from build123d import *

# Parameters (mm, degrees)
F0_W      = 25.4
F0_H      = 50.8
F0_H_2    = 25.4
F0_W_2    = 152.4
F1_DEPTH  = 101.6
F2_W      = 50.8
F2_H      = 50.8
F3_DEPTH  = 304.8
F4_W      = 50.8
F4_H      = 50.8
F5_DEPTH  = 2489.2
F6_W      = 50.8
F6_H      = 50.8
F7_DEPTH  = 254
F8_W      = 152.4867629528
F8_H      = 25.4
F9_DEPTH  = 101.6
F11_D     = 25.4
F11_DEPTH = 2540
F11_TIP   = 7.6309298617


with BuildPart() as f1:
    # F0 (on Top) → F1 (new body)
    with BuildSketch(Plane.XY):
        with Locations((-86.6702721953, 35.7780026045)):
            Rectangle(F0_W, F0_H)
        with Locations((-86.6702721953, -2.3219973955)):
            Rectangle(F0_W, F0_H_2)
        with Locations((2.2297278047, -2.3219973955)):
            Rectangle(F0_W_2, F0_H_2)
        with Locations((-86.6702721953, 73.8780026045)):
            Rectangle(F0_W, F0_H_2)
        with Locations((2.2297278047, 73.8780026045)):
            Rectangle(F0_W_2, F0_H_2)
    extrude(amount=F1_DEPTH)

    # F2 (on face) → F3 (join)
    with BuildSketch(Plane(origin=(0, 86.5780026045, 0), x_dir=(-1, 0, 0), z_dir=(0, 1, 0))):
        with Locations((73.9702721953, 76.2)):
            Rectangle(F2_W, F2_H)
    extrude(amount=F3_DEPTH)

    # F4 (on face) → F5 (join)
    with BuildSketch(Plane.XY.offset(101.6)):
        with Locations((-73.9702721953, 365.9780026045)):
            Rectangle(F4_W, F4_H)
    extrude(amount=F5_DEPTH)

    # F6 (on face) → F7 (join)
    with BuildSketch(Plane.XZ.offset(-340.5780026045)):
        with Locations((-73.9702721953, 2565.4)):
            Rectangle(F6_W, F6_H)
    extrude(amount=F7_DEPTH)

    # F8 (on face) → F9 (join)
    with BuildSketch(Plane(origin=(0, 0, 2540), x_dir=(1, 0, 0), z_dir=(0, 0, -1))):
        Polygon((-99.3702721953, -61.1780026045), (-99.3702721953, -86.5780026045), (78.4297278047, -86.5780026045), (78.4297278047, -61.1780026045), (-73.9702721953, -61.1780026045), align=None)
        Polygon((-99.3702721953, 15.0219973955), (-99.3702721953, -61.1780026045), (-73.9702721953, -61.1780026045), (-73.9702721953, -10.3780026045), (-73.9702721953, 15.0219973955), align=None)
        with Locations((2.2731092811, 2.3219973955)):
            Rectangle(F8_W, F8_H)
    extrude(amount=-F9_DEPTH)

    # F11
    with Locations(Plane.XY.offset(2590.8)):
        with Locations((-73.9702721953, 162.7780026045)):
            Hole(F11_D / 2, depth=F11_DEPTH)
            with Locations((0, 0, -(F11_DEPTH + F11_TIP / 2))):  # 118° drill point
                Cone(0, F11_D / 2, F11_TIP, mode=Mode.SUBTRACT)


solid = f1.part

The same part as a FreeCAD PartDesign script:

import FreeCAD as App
import Part
import Sketcher
from FreeCAD import Vector
Q = App.Units.Quantity

doc = App.newDocument("Part")
body = doc.addObject("PartDesign::Body", "Body")

sketch1 = doc.addObject("Sketcher::SketchObject", "Sketch")
body.addObject(sketch1)
sketch1.AttachmentSupport = (doc.XY_Plane, [""])
sketch1.MapMode = "FlatFace"
sketch1.addGeometry([
    Part.LineSegment(Vector(-99.370272, -15.021997, 0), Vector(78.429728, -15.021997, 0)),
    Part.LineSegment(Vector(78.429728, -15.021997, 0), Vector(78.429728, 10.378003, 0)),
    Part.LineSegment(Vector(78.429728, 10.378003, 0), Vector(-73.970272, 10.378003, 0)),
    Part.LineSegment(Vector(-73.970272, 10.378003, 0), Vector(-73.970272, 61.178003, 0)),
    Part.LineSegment(Vector(-73.970272, 61.178003, 0), Vector(78.429728, 61.178003, 0)),
    Part.LineSegment(Vector(78.429728, 61.178003, 0), Vector(78.429728, 86.578003, 0)),
    Part.LineSegment(Vector(78.429728, 86.578003, 0), Vector(-99.370272, 86.578003, 0)),
    Part.LineSegment(Vector(-99.370272, 86.578003, 0), Vector(-99.370272, -15.021997, 0)),
], False)
sketch1.addConstraint([
    Sketcher.Constraint("Coincident", 0, 2, 1, 1),
    Sketcher.Constraint("Coincident", 1, 2, 2, 1),
    Sketcher.Constraint("Coincident", 2, 2, 3, 1),
    Sketcher.Constraint("Coincident", 3, 2, 4, 1),
    Sketcher.Constraint("Coincident", 4, 2, 5, 1),
    Sketcher.Constraint("Coincident", 5, 2, 6, 1),
    Sketcher.Constraint("Coincident", 6, 2, 7, 1),
    Sketcher.Constraint("Coincident", 7, 2, 0, 1),
    Sketcher.Constraint("Horizontal", 0),
    Sketcher.Constraint("Vertical", 1),
    Sketcher.Constraint("Horizontal", 2),
    Sketcher.Constraint("Vertical", 3),
    Sketcher.Constraint("Horizontal", 4),
    Sketcher.Constraint("Vertical", 5),
    Sketcher.Constraint("Horizontal", 6),
    Sketcher.Constraint("Vertical", 7),
    Sketcher.Constraint("Vertical", 1, 2, 4, 2),
    Sketcher.Constraint("Equal", 1, 5),
    Sketcher.Constraint("DistanceX", 0, 1, 0, 2, Q("7 in")),
    Sketcher.Constraint("DistanceX", 2, 2, 2, 1, Q("6 in")),
    Sketcher.Constraint("DistanceY", 1, 1, 1, 2, Q("1 in")),
    Sketcher.Constraint("DistanceY", 3, 1, 3, 2, Q("2 in")),
    Sketcher.Constraint("DistanceX", -1, 1, 0, 2, Q("78.429728 mm")),
    Sketcher.Constraint("DistanceY", 0, 2, -1, 1, Q("15.021997 mm")),
])
pad1 = doc.addObject("PartDesign::Pad", "Pad")
body.addObject(pad1)
pad1.Profile = sketch1
pad1.Length = Q("4 in")

sketch2 = doc.addObject("Sketcher::SketchObject", "Sketch001")
body.addObject(sketch2)
sketch2.AttachmentSupport = (doc.XZ_Plane, [""])
sketch2.MapMode = "FlatFace"
sketch2.AttachmentOffset = App.Placement(Vector(0, 0, -86.578003), App.Rotation())
sketch2.addGeometry([
    Part.LineSegment(Vector(-48.570272, 101.6, 0), Vector(-48.570272, 50.8, 0)),
    Part.LineSegment(Vector(-48.570272, 50.8, 0), Vector(-99.370272, 50.8, 0)),
    Part.LineSegment(Vector(-99.370272, 50.8, 0), Vector(-99.370272, 101.6, 0)),
    Part.LineSegment(Vector(-99.370272, 101.6, 0), Vector(-48.570272, 101.6, 0)),
], False)
sketch2.addConstraint([
    Sketcher.Constraint("Coincident", 0, 2, 1, 1),
    Sketcher.Constraint("Coincident", 1, 2, 2, 1),
    Sketcher.Constraint("Coincident", 2, 2, 3, 1),
    Sketcher.Constraint("Coincident", 3, 2, 0, 1),
    Sketcher.Constraint("Vertical", 0),
    Sketcher.Constraint("Horizontal", 1),
    Sketcher.Constraint("Vertical", 2),
    Sketcher.Constraint("Horizontal", 3),
    Sketcher.Constraint("Equal", 3, 0),
    Sketcher.Constraint("DistanceX", 1, 2, 1, 1, Q("2 in")),
    Sketcher.Constraint("DistanceY", -1, 1, 0, 2, Q("2 in")),
    Sketcher.Constraint("DistanceX", 0, 2, -1, 1, Q("48.570272 mm")),
])
pad2 = doc.addObject("PartDesign::Pad", "Pad001")
body.addObject(pad2)
pad2.Profile = sketch2
pad2.Length = Q("12 in")
pad2.Reversed = True

sketch3 = doc.addObject("Sketcher::SketchObject", "Sketch002")
body.addObject(sketch3)
sketch3.AttachmentSupport = (doc.XY_Plane, [""])
sketch3.MapMode = "FlatFace"
sketch3.AttachmentOffset = App.Placement(Vector(0, 0, 4 * 25.4), App.Rotation())
sketch3.addGeometry([
    Part.LineSegment(Vector(-99.370272, 391.378003, 0), Vector(-99.370272, 340.578003, 0)),
    Part.LineSegment(Vector(-99.370272, 340.578003, 0), Vector(-48.570272, 340.578003, 0)),
    Part.LineSegment(Vector(-48.570272, 340.578003, 0), Vector(-48.570272, 391.378003, 0)),
    Part.LineSegment(Vector(-48.570272, 391.378003, 0), Vector(-99.370272, 391.378003, 0)),
], False)
sketch3.addConstraint([
    Sketcher.Constraint("Coincident", 0, 2, 1, 1),
    Sketcher.Constraint("Coincident", 1, 2, 2, 1),
    Sketcher.Constraint("Coincident", 2, 2, 3, 1),
    Sketcher.Constraint("Coincident", 3, 2, 0, 1),
    Sketcher.Constraint("Vertical", 0),
    Sketcher.Constraint("Horizontal", 1),
    Sketcher.Constraint("Vertical", 2),
    Sketcher.Constraint("Horizontal", 3),
    Sketcher.Constraint("Equal", 3, 0),
    Sketcher.Constraint("DistanceX", 1, 1, 1, 2, Q("2 in")),
    Sketcher.Constraint("DistanceX", 0, 2, -1, 1, Q("99.370272 mm")),
    Sketcher.Constraint("DistanceY", -1, 1, 0, 2, Q("340.578003 mm")),
])
pad3 = doc.addObject("PartDesign::Pad", "Pad002")
body.addObject(pad3)
pad3.Profile = sketch3
pad3.Length = Q("98 in")

sketch4 = doc.addObject("Sketcher::SketchObject", "Sketch003")
body.addObject(sketch4)
sketch4.AttachmentSupport = (doc.XZ_Plane, [""])
sketch4.MapMode = "FlatFace"
sketch4.AttachmentOffset = App.Placement(Vector(0, 0, -340.578003), App.Rotation())
sketch4.addGeometry([
    Part.LineSegment(Vector(-99.370272, 2590.8, 0), Vector(-99.370272, 2540, 0)),
    Part.LineSegment(Vector(-99.370272, 2540, 0), Vector(-48.570272, 2540, 0)),
    Part.LineSegment(Vector(-48.570272, 2540, 0), Vector(-48.570272, 2590.8, 0)),
    Part.LineSegment(Vector(-48.570272, 2590.8, 0), Vector(-99.370272, 2590.8, 0)),
], False)
sketch4.addConstraint([
    Sketcher.Constraint("Coincident", 0, 2, 1, 1),
    Sketcher.Constraint("Coincident", 1, 2, 2, 1),
    Sketcher.Constraint("Coincident", 2, 2, 3, 1),
    Sketcher.Constraint("Coincident", 3, 2, 0, 1),
    Sketcher.Constraint("Vertical", 0),
    Sketcher.Constraint("Horizontal", 1),
    Sketcher.Constraint("Vertical", 2),
    Sketcher.Constraint("Horizontal", 3),
    Sketcher.Constraint("Equal", 3, 0),
    Sketcher.Constraint("DistanceX", 1, 1, 1, 2, Q("2 in")),
    Sketcher.Constraint("DistanceY", -1, 1, 0, 2, Q("100 in")),
    Sketcher.Constraint("DistanceX", 0, 2, -1, 1, Q("99.370272 mm")),
])
pad4 = doc.addObject("PartDesign::Pad", "Pad003")
body.addObject(pad4)
pad4.Profile = sketch4
pad4.Length = Q("10 in")

sketch5 = doc.addObject("Sketcher::SketchObject", "Sketch004")
body.addObject(sketch5)
sketch5.AttachmentSupport = (doc.XY_Plane, [""])
sketch5.MapMode = "FlatFace"
sketch5.AttachmentOffset = App.Placement(Vector(0, 0, 100 * 25.4), App.Rotation())
sketch5.addGeometry([
    Part.LineSegment(Vector(-99.370272, 86.578003, 0), Vector(78.429728, 86.578003, 0)),
    Part.LineSegment(Vector(78.429728, 86.578003, 0), Vector(78.429728, 61.178003, 0)),
    Part.LineSegment(Vector(78.429728, 61.178003, 0), Vector(-73.970272, 61.178003, 0)),
    Part.LineSegment(Vector(-73.970272, 61.178003, 0), Vector(-73.970272, 10.378003, 0)),
    Part.LineSegment(Vector(-73.970272, 10.378003, 0), Vector(78.516491, 10.378003, 0)),
    Part.LineSegment(Vector(78.516491, 10.378003, 0), Vector(78.516491, -15.021997, 0)),
    Part.LineSegment(Vector(78.516491, -15.021997, 0), Vector(-99.370272, -15.021997, 0)),
    Part.LineSegment(Vector(-99.370272, -15.021997, 0), Vector(-99.370272, 86.578003, 0)),
], False)
sketch5.addConstraint([
    Sketcher.Constraint("Coincident", 0, 2, 1, 1),
    Sketcher.Constraint("Coincident", 1, 2, 2, 1),
    Sketcher.Constraint("Coincident", 2, 2, 3, 1),
    Sketcher.Constraint("Coincident", 3, 2, 4, 1),
    Sketcher.Constraint("Coincident", 4, 2, 5, 1),
    Sketcher.Constraint("Coincident", 5, 2, 6, 1),
    Sketcher.Constraint("Coincident", 6, 2, 7, 1),
    Sketcher.Constraint("Coincident", 7, 2, 0, 1),
    Sketcher.Constraint("Horizontal", 0),
    Sketcher.Constraint("Vertical", 1),
    Sketcher.Constraint("Horizontal", 2),
    Sketcher.Constraint("Vertical", 3),
    Sketcher.Constraint("Horizontal", 4),
    Sketcher.Constraint("Vertical", 5),
    Sketcher.Constraint("Horizontal", 6),
    Sketcher.Constraint("Vertical", 7),
    Sketcher.Constraint("Equal", 1, 5),
    Sketcher.Constraint("DistanceX", 0, 1, 0, 2, Q("7 in")),
    Sketcher.Constraint("DistanceX", 2, 2, 2, 1, Q("6 in")),
    Sketcher.Constraint("DistanceY", 1, 2, 1, 1, Q("1 in")),
    Sketcher.Constraint("DistanceY", 3, 2, 3, 1, Q("2 in")),
    Sketcher.Constraint("DistanceX", 4, 1, 4, 2, Q("152.486763 mm")),
    Sketcher.Constraint("DistanceX", -1, 1, 4, 2, Q("78.516491 mm")),
    Sketcher.Constraint("DistanceY", -1, 1, 0, 2, Q("86.578003 mm")),
])
pad5 = doc.addObject("PartDesign::Pad", "Pad004")
body.addObject(pad5)
pad5.Profile = sketch5
pad5.Length = Q("4 in")

sketch6 = doc.addObject("Sketcher::SketchObject", "Sketch005")
body.addObject(sketch6)
sketch6.AttachmentSupport = (doc.XY_Plane, [""])
sketch6.MapMode = "FlatFace"
sketch6.AttachmentOffset = App.Placement(Vector(0, 0, 102 * 25.4), App.Rotation())
sketch6.addGeometry(Part.Circle(Vector(-73.970272, 162.778003, 0), Vector(0, 0, 1), 12.7), False)
sketch6.addConstraint([
    Sketcher.Constraint("Diameter", 0, Q("1 in")),
    Sketcher.Constraint("DistanceX", 0, 3, -1, 1, Q("73.970272 mm")),
    Sketcher.Constraint("DistanceY", -1, 1, 0, 3, Q("162.778003 mm")),
])
doc.recompute()
hole = doc.addObject("PartDesign::Hole", "Hole")
body.addObject(hole)
hole.Profile = sketch6
hole.ThreadType = "None"
hole.Diameter = Q("1 in")
hole.DepthType = "Dimension"
hole.Depth = Q("100 in")
hole.DrillPoint = "Angled"
hole.DrillPointAngle = 118

doc.recompute()
